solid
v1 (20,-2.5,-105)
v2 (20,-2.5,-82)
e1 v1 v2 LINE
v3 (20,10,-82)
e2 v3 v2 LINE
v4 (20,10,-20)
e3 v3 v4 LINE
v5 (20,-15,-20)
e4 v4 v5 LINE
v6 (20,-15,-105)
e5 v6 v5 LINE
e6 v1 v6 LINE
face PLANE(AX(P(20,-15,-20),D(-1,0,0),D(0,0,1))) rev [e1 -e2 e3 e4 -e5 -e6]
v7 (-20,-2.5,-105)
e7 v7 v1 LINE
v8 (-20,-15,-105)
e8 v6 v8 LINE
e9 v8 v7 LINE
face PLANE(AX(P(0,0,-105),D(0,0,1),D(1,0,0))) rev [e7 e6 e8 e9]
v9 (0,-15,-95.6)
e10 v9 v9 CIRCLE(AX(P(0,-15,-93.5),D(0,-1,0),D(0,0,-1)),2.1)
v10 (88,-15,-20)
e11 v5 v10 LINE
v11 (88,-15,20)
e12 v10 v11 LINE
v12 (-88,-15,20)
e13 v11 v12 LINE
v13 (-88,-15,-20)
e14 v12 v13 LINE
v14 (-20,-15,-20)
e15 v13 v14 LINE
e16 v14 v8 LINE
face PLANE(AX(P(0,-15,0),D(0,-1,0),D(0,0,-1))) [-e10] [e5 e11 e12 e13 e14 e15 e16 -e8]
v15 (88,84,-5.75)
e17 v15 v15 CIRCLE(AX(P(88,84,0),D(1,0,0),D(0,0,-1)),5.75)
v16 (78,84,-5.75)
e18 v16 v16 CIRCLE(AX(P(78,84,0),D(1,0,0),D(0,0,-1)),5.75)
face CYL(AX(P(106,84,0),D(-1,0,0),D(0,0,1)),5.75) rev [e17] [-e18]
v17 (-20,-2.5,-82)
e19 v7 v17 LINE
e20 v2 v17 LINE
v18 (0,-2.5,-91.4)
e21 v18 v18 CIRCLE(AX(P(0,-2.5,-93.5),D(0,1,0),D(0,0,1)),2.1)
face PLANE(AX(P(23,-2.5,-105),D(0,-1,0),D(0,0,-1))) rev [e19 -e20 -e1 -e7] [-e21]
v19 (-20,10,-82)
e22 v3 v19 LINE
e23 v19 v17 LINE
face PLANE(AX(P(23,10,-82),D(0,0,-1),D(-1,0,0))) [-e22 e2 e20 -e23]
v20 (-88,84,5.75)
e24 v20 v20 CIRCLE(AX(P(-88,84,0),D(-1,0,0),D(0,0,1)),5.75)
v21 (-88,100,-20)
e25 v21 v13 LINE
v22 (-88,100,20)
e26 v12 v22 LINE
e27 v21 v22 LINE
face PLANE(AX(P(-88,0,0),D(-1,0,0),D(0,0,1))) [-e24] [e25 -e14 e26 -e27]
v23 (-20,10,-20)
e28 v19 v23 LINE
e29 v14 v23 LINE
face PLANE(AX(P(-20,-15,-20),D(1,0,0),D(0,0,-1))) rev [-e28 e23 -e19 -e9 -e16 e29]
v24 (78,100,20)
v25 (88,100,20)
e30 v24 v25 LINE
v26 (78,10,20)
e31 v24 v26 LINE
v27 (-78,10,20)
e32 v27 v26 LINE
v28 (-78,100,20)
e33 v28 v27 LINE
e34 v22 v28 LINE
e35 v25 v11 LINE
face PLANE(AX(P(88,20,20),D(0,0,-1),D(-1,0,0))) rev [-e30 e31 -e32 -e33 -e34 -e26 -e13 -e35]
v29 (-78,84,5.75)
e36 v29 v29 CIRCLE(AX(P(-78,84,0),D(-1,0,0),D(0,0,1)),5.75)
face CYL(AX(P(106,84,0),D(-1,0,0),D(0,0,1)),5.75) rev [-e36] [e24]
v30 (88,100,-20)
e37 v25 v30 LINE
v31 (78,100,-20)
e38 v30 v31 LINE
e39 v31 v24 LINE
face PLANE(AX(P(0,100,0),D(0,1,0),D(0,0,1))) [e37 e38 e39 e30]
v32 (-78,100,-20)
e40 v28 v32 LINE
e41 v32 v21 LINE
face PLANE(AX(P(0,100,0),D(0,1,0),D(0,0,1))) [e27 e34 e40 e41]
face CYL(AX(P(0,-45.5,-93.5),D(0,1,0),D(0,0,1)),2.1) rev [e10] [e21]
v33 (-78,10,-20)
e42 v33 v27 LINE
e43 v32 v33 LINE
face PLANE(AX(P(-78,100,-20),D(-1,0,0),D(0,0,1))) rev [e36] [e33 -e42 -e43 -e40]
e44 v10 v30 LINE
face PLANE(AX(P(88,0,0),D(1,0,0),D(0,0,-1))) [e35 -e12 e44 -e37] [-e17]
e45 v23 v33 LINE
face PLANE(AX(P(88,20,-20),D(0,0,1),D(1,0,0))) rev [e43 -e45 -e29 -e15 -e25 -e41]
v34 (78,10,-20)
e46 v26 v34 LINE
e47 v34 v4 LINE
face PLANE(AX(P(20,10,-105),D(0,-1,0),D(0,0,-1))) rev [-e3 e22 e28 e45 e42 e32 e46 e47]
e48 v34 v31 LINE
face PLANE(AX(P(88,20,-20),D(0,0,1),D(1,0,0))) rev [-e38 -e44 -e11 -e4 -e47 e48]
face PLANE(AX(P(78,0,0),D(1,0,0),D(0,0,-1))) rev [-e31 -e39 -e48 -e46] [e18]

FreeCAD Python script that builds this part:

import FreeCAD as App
import Part
import Sketcher

V = App.Vector

doc = App.newDocument("Part")
body = doc.addObject("PartDesign::Body", "Body")

# Sketch on XZ plane
sketch1 = doc.addObject("Sketcher::SketchObject", "Sketch")
body.addObject(sketch1)
sketch1.AttachmentSupport = (doc.XZ_Plane, [""])
sketch1.MapMode = "FlatFace"
sketch1.addGeometry(Part.LineSegment(V(-78, -20, 0), V(-78, 20, 0)), False)
sketch1.addGeometry(Part.LineSegment(V(-78, 20, 0), V(78, 20, 0)), False)
sketch1.addGeometry(Part.LineSegment(V(78, 20, 0), V(78, -20, 0)), False)
sketch1.addGeometry(Part.LineSegment(V(78, -20, 0), V(-78, -20, 0)), False)
sketch1.addConstraint(Sketcher.Constraint("Coincident", 0, 2, 1, 1))
sketch1.addConstraint(Sketcher.Constraint("Coincident", 1, 2, 2, 1))
sketch1.addConstraint(Sketcher.Constraint("Coincident", 2, 2, 3, 1))
sketch1.addConstraint(Sketcher.Constraint("Coincident", 3, 2, 0, 1))
sketch1.addConstraint(Sketcher.Constraint("Vertical", 0))
sketch1.addConstraint(Sketcher.Constraint("Horizontal", 1))
sketch1.addConstraint(Sketcher.Constraint("Vertical", 2))
sketch1.addConstraint(Sketcher.Constraint("Horizontal", 3))
sketch1.addConstraint(Sketcher.Constraint("Symmetric", 0, 2, 2, 2, -1, 1))
sketch1.addConstraint(Sketcher.Constraint("DistanceX", 1, 1, 1, 2, 156.0))
sketch1.addConstraint(Sketcher.Constraint("DistanceY", 0, 1, 0, 2, 40.0))
pad1 = doc.addObject("PartDesign::Pad", "Pad")
body.addObject(pad1)
pad1.Profile = sketch1
pad1.Length = 20
pad1.Reversed = True
body2 = doc.addObject("PartDesign::Body", "Body001")

# Sketch on YZ plane
sketch2 = doc.addObject("Sketcher::SketchObject", "Sketch001")
body2.addObject(sketch2)
sketch2.AttachmentSupport = (doc.getObject("YZ_Plane001"), [""])
sketch2.MapMode = "FlatFace"
sketch2.AttachmentOffset = App.Placement(V(0, 0, -78), App.Rotation())
sketch2.addGeometry(Part.LineSegment(V(20, -20, 0), V(0, -20, 0)), False)
sketch2.addGeometry(Part.LineSegment(V(0, -20, 0), V(0, 20, 0)), False)
sketch2.addGeometry(Part.LineSegment(V(0, 20, 0), V(20, 20, 0)), False)
sketch2.addGeometry(Part.LineSegment(V(20, 20, 0), V(20, -20, 0)), False)
sketch2.addConstraint(Sketcher.Constraint("Coincident", 0, 2, 1, 1))
sketch2.addConstraint(Sketcher.Constraint("Coincident", 1, 2, 2, 1))
sketch2.addConstraint(Sketcher.Constraint("Coincident", 2, 2, 3, 1))
sketch2.addConstraint(Sketcher.Constraint("Coincident", 3, 2, 0, 1))
sketch2.addConstraint(Sketcher.Constraint("Horizontal", 0))
sketch2.addConstraint(Sketcher.Constraint("Vertical", 1))
sketch2.addConstraint(Sketcher.Constraint("Horizontal", 2))
sketch2.addConstraint(Sketcher.Constraint("Vertical", 3))
sketch2.addConstraint(Sketcher.Constraint("Symmetric", 0, 2, 1, 2, -1, 1))
sketch2.addConstraint(Sketcher.Constraint("DistanceX", 0, 2, 0, 1, 20.0))
sketch2.addConstraint(Sketcher.Constraint("DistanceY", 1, 1, 1, 2, 40.0))
pad2 = doc.addObject("PartDesign::Pad", "Pad001")
body2.addObject(pad2)
pad2.Profile = sketch2
pad2.Length = 10
pad2.Reversed = True
body3 = doc.addObject("PartDesign::Body", "Body002")

# Sketch on YZ plane
sketch3 = doc.addObject("Sketcher::SketchObject", "Sketch002")
body3.addObject(sketch3)
sketch3.AttachmentSupport = (doc.getObject("YZ_Plane002"), [""])
sketch3.MapMode = "FlatFace"
sketch3.AttachmentOffset = App.Placement(V(0, 0, 78), App.Rotation())
sketch3.addGeometry(Part.LineSegment(V(20, 20, 0), V(0, 20, 0)), False)
sketch3.addGeometry(Part.LineSegment(V(0, 20, 0), V(0, -20, 0)), False)
sketch3.addGeometry(Part.LineSegment(V(0, -20, 0), V(20, -20, 0)), False)
sketch3.addGeometry(Part.LineSegment(V(20, -20, 0), V(20, 20, 0)), False)
sketch3.addConstraint(Sketcher.Constraint("Coincident", 0, 2, 1, 1))
sketch3.addConstraint(Sketcher.Constraint("Coincident", 1, 2, 2, 1))
sketch3.addConstraint(Sketcher.Constraint("Coincident", 2, 2, 3, 1))
sketch3.addConstraint(Sketcher.Constraint("Coincident", 3, 2, 0, 1))
sketch3.addConstraint(Sketcher.Constraint("Horizontal", 0))
sketch3.addConstraint(Sketcher.Constraint("Vertical", 1))
sketch3.addConstraint(Sketcher.Constraint("Horizontal", 2))
sketch3.addConstraint(Sketcher.Constraint("Vertical", 3))
sketch3.addConstraint(Sketcher.Constraint("Symmetric", 0, 2, 1, 2, -1, 1))
sketch3.addConstraint(Sketcher.Constraint("DistanceX", 0, 2, 0, 1, 20.0))
sketch3.addConstraint(Sketcher.Constraint("DistanceY", 1, 2, 1, 1, 40.0))
pad3 = doc.addObject("PartDesign::Pad", "Pad002")
body3.addObject(pad3)
pad3.Profile = sketch3
pad3.Length = 10
doc.recompute()

boolean = doc.addObject("PartDesign::Boolean", "Boolean")
body.addObject(boolean)
boolean.Type = "Fuse"
boolean.addObjects([body2])

# Sketch on XZ plane
sketch4 = doc.addObject("Sketcher::SketchObject", "Sketch003")
body.addObject(sketch4)
sketch4.AttachmentSupport = (doc.XZ_Plane, [""])
sketch4.MapMode = "FlatFace"
sketch4.AttachmentOffset = App.Placement(V(0, 0, -20), App.Rotation())
sketch4.addGeometry(Part.LineSegment(V(-88, -20, 0), V(-88, 20, 0)), False)
sketch4.addGeometry(Part.LineSegment(V(-88, 20, 0), V(-78, 20, 0)), False)
sketch4.addGeometry(Part.LineSegment(V(-78, 20, 0), V(-78, -20, 0)), False)
sketch4.addGeometry(Part.LineSegment(V(-78, -20, 0), V(-88, -20, 0)), False)
sketch4.addConstraint(Sketcher.Constraint("Coincident", 0, 2, 1, 1))
sketch4.addConstraint(Sketcher.Constraint("Coincident", 1, 2, 2, 1))
sketch4.addConstraint(Sketcher.Constraint("Coincident", 2, 2, 3, 1))
sketch4.addConstraint(Sketcher.Constraint("Coincident", 3, 2, 0, 1))
sketch4.addConstraint(Sketcher.Constraint("Vertical", 0))
sketch4.addConstraint(Sketcher.Constraint("Horizontal", 1))
sketch4.addConstraint(Sketcher.Constraint("Vertical", 2))
sketch4.addConstraint(Sketcher.Constraint("Horizontal", 3))
sketch4.addConstraint(Sketcher.Constraint("DistanceX", 1, 1, 1, 2, 10.0))
sketch4.addConstraint(Sketcher.Constraint("DistanceY", 0, 1, 0, 2, 40.0))
sketch4.addConstraint(Sketcher.Constraint("DistanceX", 0, 2, -1, 1, 88.0))
sketch4.addConstraint(Sketcher.Constraint("DistanceY", -1, 1, 0, 2, 20.0))
pad4 = doc.addObject("PartDesign::Pad", "Pad003")
body.addObject(pad4)
pad4.Profile = sketch4
pad4.Length = 80
pad4.Reversed = True
doc.recompute()

boolean2 = doc.addObject("PartDesign::Boolean", "Boolean001")
body.addObject(boolean2)
boolean2.Type = "Fuse"
boolean2.addObjects([body3])

# Sketch on XZ plane
sketch5 = doc.addObject("Sketcher::SketchObject", "Sketch004")
body.addObject(sketch5)
sketch5.AttachmentSupport = (doc.XZ_Plane, [""])
sketch5.MapMode = "FlatFace"
sketch5.AttachmentOffset = App.Placement(V(0, 0, -20), App.Rotation())
sketch5.addGeometry(Part.LineSegment(V(78, -20, 0), V(78, 20, 0)), False)
sketch5.addGeometry(Part.LineSegment(V(78, 20, 0), V(88, 20, 0)), False)
sketch5.addGeometry(Part.LineSegment(V(88, 20, 0), V(88, -20, 0)), False)
sketch5.addGeometry(Part.LineSegment(V(88, -20, 0), V(78, -20, 0)), False)
sketch5.addConstraint(Sketcher.Constraint("Coincident", 0, 2, 1, 1))
sketch5.addConstraint(Sketcher.Constraint("Coincident", 1, 2, 2, 1))
sketch5.addConstraint(Sketcher.Constraint("Coincident", 2, 2, 3, 1))
sketch5.addConstraint(Sketcher.Constraint("Coincident", 3, 2, 0, 1))
sketch5.addConstraint(Sketcher.Constraint("Vertical", 0))
sketch5.addConstraint(Sketcher.Constraint("Horizontal", 1))
sketch5.addConstraint(Sketcher.Constraint("Vertical", 2))
sketch5.addConstraint(Sketcher.Constraint("Horizontal", 3))
sketch5.addConstraint(Sketcher.Constraint("DistanceX", 1, 1, 1, 2, 10.0))
sketch5.addConstraint(Sketcher.Constraint("DistanceY", 0, 1, 0, 2, 40.0))
sketch5.addConstraint(Sketcher.Constraint("DistanceX", -1, 1, 0, 2, 78.0))
sketch5.addConstraint(Sketcher.Constraint("DistanceY", -1, 1, 0, 2, 20.0))
pad5 = doc.addObject("PartDesign::Pad", "Pad004")
body.addObject(pad5)
pad5.Profile = sketch5
pad5.Length = 80
pad5.Reversed = True

# Sketch on YZ plane
sketch6 = doc.addObject("Sketcher::SketchObject", "Sketch005")
body.addObject(sketch6)
sketch6.AttachmentSupport = (doc.YZ_Plane, [""])
sketch6.MapMode = "FlatFace"
sketch6.AttachmentOffset = App.Placement(V(0, 0, -88), App.Rotation())
sketch6.addGeometry(Part.Circle(V(84, 0, 0), V(0, 0, 1), 6), False)
sketch6.addConstraint(Sketcher.Constraint("PointOnObject", 0, 3, -1))
sketch6.addConstraint(Sketcher.Constraint("Diameter", 0, 11.5))
sketch6.addConstraint(Sketcher.Constraint("DistanceX", -1, 1, 0, 3, 84.0))
pocket1 = doc.addObject("PartDesign::Pocket", "Pocket")
body.addObject(pocket1)
pocket1.Profile = sketch6
pocket1.Length = 194
pocket1.Reversed = True

# Sketch on XZ plane
sketch7 = doc.addObject("Sketcher::SketchObject", "Sketch006")
body.addObject(sketch7)
sketch7.AttachmentSupport = (doc.XZ_Plane, [""])
sketch7.MapMode = "FlatFace"
sketch7.addGeometry(Part.LineSegment(V(-20, 20, 0), V(-20, -20, 0)), False)
sketch7.addGeometry(Part.LineSegment(V(-20, -20, 0), V(20, -20, 0)), False)
sketch7.addGeometry(Part.LineSegment(V(20, -20, 0), V(20, 20, 0)), False)
sketch7.addGeometry(Part.LineSegment(V(20, 20, 0), V(-20, 20, 0)), False)
sketch7.addConstraint(Sketcher.Constraint("Coincident", 0, 2, 1, 1))
sketch7.addConstraint(Sketcher.Constraint("Coincident", 1, 2, 2, 1))
sketch7.addConstraint(Sketcher.Constraint("Coincident", 2, 2, 3, 1))
sketch7.addConstraint(Sketcher.Constraint("Coincident", 3, 2, 0, 1))
sketch7.addConstraint(Sketcher.Constraint("Vertical", 0))
sketch7.addConstraint(Sketcher.Constraint("Horizontal", 1))
sketch7.addConstraint(Sketcher.Constraint("Vertical", 2))
sketch7.addConstraint(Sketcher.Constraint("Horizontal", 3))
sketch7.addConstraint(Sketcher.Constraint("Symmetric", 0, 2, 2, 2, -1, 1))
sketch7.addConstraint(Sketcher.Constraint("Equal", 3, 0))
sketch7.addConstraint(Sketcher.Constraint("DistanceX", 1, 1, 1, 2, 40.0))
pad6 = doc.addObject("PartDesign::Pad", "Pad005")
body.addObject(pad6)
pad6.Profile = sketch7
pad6.Length = 15

# Sketch on XY plane
sketch8 = doc.addObject("Sketcher::SketchObject", "Sketch007")
body.addObject(sketch8)
sketch8.AttachmentSupport = (doc.XY_Plane, [""])
sketch8.MapMode = "FlatFace"
sketch8.AttachmentOffset = App.Placement(V(0, 0, -20), App.Rotation())
sketch8.addGeometry(Part.LineSegment(V(20, 10, 0), V(20, -15, 0)), False)
sketch8.addGeometry(Part.LineSegment(V(20, -15, 0), V(-20, -15, 0)), False)
sketch8.addGeometry(Part.LineSegment(V(-20, -15, 0), V(-20, 10, 0)), False)
sketch8.addGeometry(Part.LineSegment(V(-20, 10, 0), V(20, 10, 0)), False)
sketch8.addConstraint(Sketcher.Constraint("Coincident", 0, 2, 1, 1))
sketch8.addConstraint(Sketcher.Constraint("Coincident", 1, 2, 2, 1))
sketch8.addConstraint(Sketcher.Constraint("Coincident", 2, 2, 3, 1))
sketch8.addConstraint(Sketcher.Constraint("Coincident", 3, 2, 0, 1))
sketch8.addConstraint(Sketcher.Constraint("Vertical", 0))
sketch8.addConstraint(Sketcher.Constraint("Horizontal", 1))
sketch8.addConstraint(Sketcher.Constraint("Vertical", 2))
sketch8.addConstraint(Sketcher.Constraint("Horizontal", 3))
sketch8.addConstraint(Sketcher.Constraint("DistanceX", 1, 2, 1, 1, 40.0))
sketch8.addConstraint(Sketcher.Constraint("DistanceY", 0, 2, 0, 1, 25.0))
sketch8.addConstraint(Sketcher.Constraint("DistanceX", -1, 1, 0, 2, 20.0))
sketch8.addConstraint(Sketcher.Constraint("DistanceY", 0, 2, -1, 1, 15.0))
pad7 = doc.addObject("PartDesign::Pad", "Pad006")
body.addObject(pad7)
pad7.Profile = sketch8
pad7.Length = 85
pad7.Reversed = True

# Sketch on YZ plane
sketch9 = doc.addObject("Sketcher::SketchObject", "Sketch008")
body.addObject(sketch9)
sketch9.AttachmentSupport = (doc.YZ_Plane, [""])
sketch9.MapMode = "FlatFace"
sketch9.AttachmentOffset = App.Placement(V(0, 0, -20), App.Rotation())
sketch9.addGeometry(Part.LineSegment(V(10, -105, 0), V(-2, -105, 0)), False)
sketch9.addGeometry(Part.LineSegment(V(-2, -105, 0), V(-2, -82, 0)), False)
sketch9.addGeometry(Part.LineSegment(V(-2, -82, 0), V(10, -82, 0)), False)
sketch9.addGeometry(Part.LineSegment(V(10, -82, 0), V(10, -105, 0)), False)
sketch9.addConstraint(Sketcher.Constraint("Coincident", 0, 2, 1, 1))
sketch9.addConstraint(Sketcher.Constraint("Coincident", 1, 2, 2, 1))
sketch9.addConstraint(Sketcher.Constraint("Coincident", 2, 2, 3, 1))
sketch9.addConstraint(Sketcher.Constraint("Coincident", 3, 2, 0, 1))
sketch9.addConstraint(Sketcher.Constraint("Horizontal", 0))
sketch9.addConstraint(Sketcher.Constraint("Vertical", 1))
sketch9.addConstraint(Sketcher.Constraint("Horizontal", 2))
sketch9.addConstraint(Sketcher.Constraint("Vertical", 3))
sketch9.addConstraint(Sketcher.Constraint("DistanceY", 1, 1, 1, 2, 23.0))
sketch9.addConstraint(Sketcher.Constraint("DistanceX", 0, 2, 0, 1, 12.5))
sketch9.addConstraint(Sketcher.Constraint("DistanceY", 0, 2, -1, 1, 105.0))
sketch9.addConstraint(Sketcher.Constraint("DistanceX", -1, 1, 2, 2, 10.0))
pocket2 = doc.addObject("PartDesign::Pocket", "Pocket001")
body.addObject(pocket2)
pocket2.Profile = sketch9
pocket2.Length = 43
pocket2.Reversed = True

# Sketch on XZ plane
sketch10 = doc.addObject("Sketcher::SketchObject", "Sketch009")
body.addObject(sketch10)
sketch10.AttachmentSupport = (doc.XZ_Plane, [""])
sketch10.MapMode = "FlatFace"
sketch10.AttachmentOffset = App.Placement(V(0, 0, 2.5), App.Rotation())
sketch10.addGeometry(Part.Circle(V(0, -93.5, 0), V(0, 0, 1), 2.1), False)
sketch10.addConstraint(Sketcher.Constraint("PointOnObject", 0, 3, -2))
sketch10.addConstraint(Sketcher.Constraint("Diameter", 0, 4.2))
sketch10.addConstraint(Sketcher.Constraint("DistanceY", 0, 3, -1, 1, 93.5))
pocket3 = doc.addObject("PartDesign::Pocket", "Pocket002")
body.addObject(pocket3)
pocket3.Profile = sketch10
pocket3.Length = 43
pocket3.Reversed = True

# Sketch on XZ plane
sketch11 = doc.addObject("Sketcher::SketchObject", "Sketch010")
body.addObject(sketch11)
sketch11.AttachmentSupport = (doc.XZ_Plane, [""])
sketch11.MapMode = "FlatFace"
sketch11.addGeometry(Part.LineSegment(V(20, 20, 0), V(20, -20, 0)), False)
sketch11.addGeometry(Part.LineSegment(V(20, -20, 0), V(88, -20, 0)), False)
sketch11.addGeometry(Part.LineSegment(V(88, -20, 0), V(88, 20, 0)), False)
sketch11.addGeometry(Part.LineSegment(V(88, 20, 0), V(20, 20, 0)), False)
sketch11.addConstraint(Sketcher.Constraint("Coincident", 0, 2, 1, 1))
sketch11.addConstraint(Sketcher.Constraint("Coincident", 1, 2, 2, 1))
sketch11.addConstraint(Sketcher.Constraint("Coincident", 2, 2, 3, 1))
sketch11.addConstraint(Sketcher.Constraint("Coincident", 3, 2, 0, 1))
sketch11.addConstraint(Sketcher.Constraint("Vertical", 0))
sketch11.addConstraint(Sketcher.Constraint("Horizontal", 1))
sketch11.addConstraint(Sketcher.Constraint("Vertical", 2))
sketch11.addConstraint(Sketcher.Constraint("Horizontal", 3))
sketch11.addConstraint(Sketcher.Constraint("DistanceX", 1, 1, 1, 2, 68.0))
sketch11.addConstraint(Sketcher.Constraint("DistanceY", 0, 2, 0, 1, 40.0))
sketch11.addConstraint(Sketcher.Constraint("DistanceX", -1, 1, 0, 2, 20.0))
sketch11.addConstraint(Sketcher.Constraint("DistanceY", 0, 2, -1, 1, 20.0))
pad8 = doc.addObject("PartDesign::Pad", "Pad007")
body.addObject(pad8)
pad8.Profile = sketch11
pad8.Length = 15

# Sketch on XZ plane
sketch12 = doc.addObject("Sketcher::SketchObject", "Sketch011")
body.addObject(sketch12)
sketch12.AttachmentSupport = (doc.XZ_Plane, [""])
sketch12.MapMode = "FlatFace"
sketch12.addGeometry(Part.LineSegment(V(-88, 20, 0), V(-88, -20, 0)), False)
sketch12.addGeometry(Part.LineSegment(V(-88, -20, 0), V(-20, -20, 0)), False)
sketch12.addGeometry(Part.LineSegment(V(-20, -20, 0), V(-20, 20, 0)), False)
sketch12.addGeometry(Part.LineSegment(V(-20, 20, 0), V(-88, 20, 0)), False)
sketch12.addConstraint(Sketcher.Constraint("Coincident", 0, 2, 1, 1))
sketch12.addConstraint(Sketcher.Constraint("Coincident", 1, 2, 2, 1))
sketch12.addConstraint(Sketcher.Constraint("Coincident", 2, 2, 3, 1))
sketch12.addConstraint(Sketcher.Constraint("Coincident", 3, 2, 0, 1))
sketch12.addConstraint(Sketcher.Constraint("Vertical", 0))
sketch12.addConstraint(Sketcher.Constraint("Horizontal", 1))
sketch12.addConstraint(Sketcher.Constraint("Vertical", 2))
sketch12.addConstraint(Sketcher.Constraint("Horizontal", 3))
sketch12.addConstraint(Sketcher.Constraint("DistanceX", 1, 1, 1, 2, 68.0))
sketch12.addConstraint(Sketcher.Constraint("DistanceY", 0, 2, 0, 1, 40.0))
sketch12.addConstraint(Sketcher.Constraint("DistanceX", 0, 2, -1, 1, 88.0))
sketch12.addConstraint(Sketcher.Constraint("DistanceY", 0, 2, -1, 1, 20.0))
pad9 = doc.addObject("PartDesign::Pad", "Pad008")
body.addObject(pad9)
pad9.Profile = sketch12
pad9.Length = 15

# Sketch on XZ plane
sketch13 = doc.addObject("Sketcher::SketchObject", "Sketch012")
body.addObject(sketch13)
sketch13.AttachmentSupport = (doc.XZ_Plane, [""])
sketch13.MapMode = "FlatFace"
sketch13.AttachmentOffset = App.Placement(V(0, 0, -20), App.Rotation())
sketch13.addGeometry(Part.LineSegment(V(-78, -20, 0), V(-78, 20, 0)), False)
sketch13.addGeometry(Part.LineSegment(V(-78, 20, 0), V(78, 20, 0)), False)
sketch13.addGeometry(Part.LineSegment(V(78, 20, 0), V(78, -20, 0)), False)
sketch13.addGeometry(Part.LineSegment(V(78, -20, 0), V(-78, -20, 0)), False)
sketch13.addConstraint(Sketcher.Constraint("Coincident", 0, 2, 1, 1))
sketch13.addConstraint(Sketcher.Constraint("Coincident", 1, 2, 2, 1))
sketch13.addConstraint(Sketcher.Constraint("Coincident", 2, 2, 3, 1))
sketch13.addConstraint(Sketcher.Constraint("Coincident", 3, 2, 0, 1))
sketch13.addConstraint(Sketcher.Constraint("Vertical", 0))
sketch13.addConstraint(Sketcher.Constraint("Horizontal", 1))
sketch13.addConstraint(Sketcher.Constraint("Vertical", 2))
sketch13.addConstraint(Sketcher.Constraint("Horizontal", 3))
sketch13.addConstraint(Sketcher.Constraint("Symmetric", 0, 2, 2, 2, -1, 1))
sketch13.addConstraint(Sketcher.Constraint("DistanceX", 1, 1, 1, 2, 156.0))
sketch13.addConstraint(Sketcher.Constraint("DistanceY", 0, 1, 0, 2, 40.0))
pocket4 = doc.addObject("PartDesign::Pocket", "Pocket003")
body.addObject(pocket4)
pocket4.Profile = sketch13
pocket4.Length = 10
pocket4.Reversed = True

doc.recompute()
